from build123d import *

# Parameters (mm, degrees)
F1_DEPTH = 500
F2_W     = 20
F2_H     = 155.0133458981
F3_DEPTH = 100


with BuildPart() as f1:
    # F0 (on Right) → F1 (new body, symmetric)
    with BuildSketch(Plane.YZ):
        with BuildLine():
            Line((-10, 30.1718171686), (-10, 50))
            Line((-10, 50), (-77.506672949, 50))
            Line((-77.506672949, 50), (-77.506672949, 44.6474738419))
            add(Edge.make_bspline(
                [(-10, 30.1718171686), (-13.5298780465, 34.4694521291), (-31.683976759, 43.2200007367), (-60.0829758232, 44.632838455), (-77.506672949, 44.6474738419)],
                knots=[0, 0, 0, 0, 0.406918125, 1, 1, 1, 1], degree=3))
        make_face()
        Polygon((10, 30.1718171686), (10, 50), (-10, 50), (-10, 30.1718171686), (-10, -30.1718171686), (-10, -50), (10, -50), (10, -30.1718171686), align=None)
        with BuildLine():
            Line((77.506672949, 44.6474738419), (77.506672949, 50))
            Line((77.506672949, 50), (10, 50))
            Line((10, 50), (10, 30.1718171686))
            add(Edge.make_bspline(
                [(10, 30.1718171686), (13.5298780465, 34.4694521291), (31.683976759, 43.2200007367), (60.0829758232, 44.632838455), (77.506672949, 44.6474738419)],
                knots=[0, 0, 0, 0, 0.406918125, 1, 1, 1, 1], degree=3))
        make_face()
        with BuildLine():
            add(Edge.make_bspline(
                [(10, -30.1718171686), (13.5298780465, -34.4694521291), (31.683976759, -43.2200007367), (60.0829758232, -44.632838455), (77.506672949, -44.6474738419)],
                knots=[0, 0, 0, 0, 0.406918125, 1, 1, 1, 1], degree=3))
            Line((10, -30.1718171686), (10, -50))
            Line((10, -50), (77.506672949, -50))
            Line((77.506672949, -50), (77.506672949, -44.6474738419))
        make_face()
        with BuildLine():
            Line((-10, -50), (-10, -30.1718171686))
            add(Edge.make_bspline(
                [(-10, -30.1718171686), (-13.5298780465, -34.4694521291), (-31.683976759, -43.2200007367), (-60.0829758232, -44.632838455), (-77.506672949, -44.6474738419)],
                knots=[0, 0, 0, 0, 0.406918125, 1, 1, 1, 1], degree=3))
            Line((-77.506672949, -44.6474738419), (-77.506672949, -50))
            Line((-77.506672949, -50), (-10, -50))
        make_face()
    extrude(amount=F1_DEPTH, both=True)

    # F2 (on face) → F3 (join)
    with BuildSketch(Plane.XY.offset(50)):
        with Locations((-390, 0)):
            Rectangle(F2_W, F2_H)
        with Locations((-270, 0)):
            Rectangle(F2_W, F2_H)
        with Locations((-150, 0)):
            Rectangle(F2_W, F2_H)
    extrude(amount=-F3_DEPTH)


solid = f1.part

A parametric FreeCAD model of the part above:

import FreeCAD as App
import Part
import Sketcher


def add_polygon(sketch, points):
    """Adds a closed chain of lines whose ends are joined by coincident constraints."""
    first, n = sketch.GeometryCount, len(points)
    for a, b in zip(points, points[1:] + points[:1]):
        sketch.addGeometry(Part.LineSegment(App.Vector(*a, 0), App.Vector(*b, 0)), False)
    for i in range(n):
        sketch.addConstraint(Sketcher.Constraint("Coincident", first + i, 2, first + (i + 1) % n, 1))

doc = App.newDocument("Part")
body = doc.addObject("PartDesign::Body", "Body")

# Sketch on YZ plane
sketch1 = body.newObject("Sketcher::SketchObject", "Sketch")
sketch1.AttachmentSupport = (doc.getObject("YZ_Plane"), [""])
sketch1.MapMode = "FlatFace"
sketch1.addGeometry([
    Part.LineSegment(App.Vector(-77.506673, 50, 0), App.Vector(-77.506673, 44.647474, 0)),  # 0
    Part.BSplineCurve([App.Vector(-10, 30.171817, 0), App.Vector(-13.529878, 34.469452, 0), App.Vector(-31.683977, 43.220001, 0), App.Vector(-60.082976, 44.632838, 0), App.Vector(-77.506673, 44.647474, 0)], [4, 1, 4], [0, 0.406918125, 1], False, 3, [1, 1, 1, 1, 1], False),  # 1
    Part.LineSegment(App.Vector(-10, 30.171817, 0), App.Vector(-10, -30.171817, 0)),  # 2
    Part.BSplineCurve([App.Vector(-10, -30.171817, 0), App.Vector(-13.529878, -34.469452, 0), App.Vector(-31.683977, -43.220001, 0), App.Vector(-60.082976, -44.632838, 0), App.Vector(-77.506673, -44.647474, 0)], [4, 1, 4], [0, 0.406918125, 1], False, 3, [1, 1, 1, 1, 1], False),  # 3
    Part.LineSegment(App.Vector(-77.506673, -44.647474, 0), App.Vector(-77.506673, -50, 0)),  # 4
    Part.LineSegment(App.Vector(-77.506673, -50, 0), App.Vector(77.506673, -50, 0)),  # 5
    Part.LineSegment(App.Vector(77.506673, -50, 0), App.Vector(77.506673, -44.647474, 0)),  # 6
    Part.BSplineCurve([App.Vector(10, -30.171817, 0), App.Vector(13.529878, -34.469452, 0), App.Vector(31.683977, -43.220001, 0), App.Vector(60.082976, -44.632838, 0), App.Vector(77.506673, -44.647474, 0)], [4, 1, 4], [0, 0.406918125, 1], False, 3, [1, 1, 1, 1, 1], False),  # 7
    Part.LineSegment(App.Vector(10, -30.171817, 0), App.Vector(10, 30.171817, 0)),  # 8
    Part.BSplineCurve([App.Vector(10, 30.171817, 0), App.Vector(13.529878, 34.469452, 0), App.Vector(31.683977, 43.220001, 0), App.Vector(60.082976, 44.632838, 0), App.Vector(77.506673, 44.647474, 0)], [4, 1, 4], [0, 0.406918125, 1], False, 3, [1, 1, 1, 1, 1], False),  # 9
    Part.LineSegment(App.Vector(77.506673, 44.647474, 0), App.Vector(77.506673, 50, 0)),  # 10
    Part.LineSegment(App.Vector(77.506673, 50, 0), App.Vector(-77.506673, 50, 0)),  # 11
], False)
sketch1.addConstraint([
    Sketcher.Constraint("Block", 1),
    Sketcher.Constraint("Block", 3),
    Sketcher.Constraint("Block", 7),
    Sketcher.Constraint("Block", 9),
    Sketcher.Constraint("Coincident", 0, 2, 1, 2),
    Sketcher.Constraint("Coincident", 1, 1, 2, 1),
    Sketcher.Constraint("Coincident", 2, 2, 3, 1),
    Sketcher.Constraint("Coincident", 3, 2, 4, 1),
    Sketcher.Constraint("Coincident", 4, 2, 5, 1),
    Sketcher.Constraint("Coincident", 5, 2, 6, 1),
    Sketcher.Constraint("Coincident", 6, 2, 7, 2),
    Sketcher.Constraint("Coincident", 7, 1, 8, 1),
    Sketcher.Constraint("Coincident", 8, 2, 9, 1),
    Sketcher.Constraint("Coincident", 9, 2, 10, 1),
    Sketcher.Constraint("Coincident", 10, 2, 11, 1),
    Sketcher.Constraint("Coincident", 11, 2, 0, 1),
    Sketcher.Constraint("Vertical", 0),
    Sketcher.Constraint("Vertical", 4),
    Sketcher.Constraint("Horizontal", 5),
    Sketcher.Constraint("Vertical", 6),
    Sketcher.Constraint("Vertical", 10),
    Sketcher.Constraint("Horizontal", 11),
    Sketcher.Constraint("Equal", 0, 4),
    Sketcher.Constraint("DistanceY", 4, 2, -1, 1, 50.0),
])
pad1 = body.newObject("PartDesign::Pad", "Pad")
pad1.Profile = sketch1
pad1.Length = 1000
pad1.Midplane = True

# Sketch on XY plane
sketch2 = body.newObject("Sketcher::SketchObject", "Sketch001")
sketch2.AttachmentSupport = (doc.getObject("XY_Plane"), [""])
sketch2.MapMode = "FlatFace"
sketch2.AttachmentOffset = App.Placement(App.Vector(0, 0, 50), App.Rotation())
add_polygon(sketch2, [(-400, 78), (-400, -78), (-380, -78), (-380, 78)])  # lines 0-3
add_polygon(sketch2, [(-280, 78), (-280, -78), (-260, -78), (-260, 78)])  # lines 4-7
add_polygon(sketch2, [(-160, 78), (-160, -78), (-140, -78), (-140, 78)])  # lines 8-11
sketch2.addConstraint([
    Sketcher.Constraint("Vertical", 0),
    Sketcher.Constraint("Horizontal", 1),
    Sketcher.Constraint("Vertical", 2),
    Sketcher.Constraint("Horizontal", 3),
    Sketcher.Constraint("Vertical", 4),
    Sketcher.Constraint("Horizontal", 5),
    Sketcher.Constraint("Vertical", 6),
    Sketcher.Constraint("Horizontal", 7),
    Sketcher.Constraint("Vertical", 8),
    Sketcher.Constraint("Horizontal", 9),
    Sketcher.Constraint("Vertical", 10),
    Sketcher.Constraint("Horizontal", 11),
    Sketcher.Constraint("Horizontal", 1, 2, 4, 2),
    Sketcher.Constraint("Horizontal", 3, 2, 6, 2),
    Sketcher.Constraint("Horizontal", 5, 2, 8, 2),
    Sketcher.Constraint("Horizontal", 7, 2, 10, 2),
    Sketcher.Constraint("Equal", 3, 5),
    Sketcher.Constraint("Equal", 7, 9),
    Sketcher.Constraint("DistanceX", 1, 1, 1, 2, 20.0),
    Sketcher.Constraint("DistanceX", 0, 2, -1, 1, 400.0),
    Sketcher.Constraint("DistanceX", 4, 2, -1, 1, 280.0),
    Sketcher.Constraint("DistanceX", 8, 2, -1, 1, 160.0),
    Sketcher.Constraint("DistanceY", 0, 2, 0, 1, 155.013346),
    Sketcher.Constraint("DistanceY", 0, 2, -1, 1, 77.506673),
])
pad2 = body.newObject("PartDesign::Pad", "Pad001")
pad2.Profile = sketch2
pad2.Length = 100
pad2.Reversed = True

doc.recompute()
